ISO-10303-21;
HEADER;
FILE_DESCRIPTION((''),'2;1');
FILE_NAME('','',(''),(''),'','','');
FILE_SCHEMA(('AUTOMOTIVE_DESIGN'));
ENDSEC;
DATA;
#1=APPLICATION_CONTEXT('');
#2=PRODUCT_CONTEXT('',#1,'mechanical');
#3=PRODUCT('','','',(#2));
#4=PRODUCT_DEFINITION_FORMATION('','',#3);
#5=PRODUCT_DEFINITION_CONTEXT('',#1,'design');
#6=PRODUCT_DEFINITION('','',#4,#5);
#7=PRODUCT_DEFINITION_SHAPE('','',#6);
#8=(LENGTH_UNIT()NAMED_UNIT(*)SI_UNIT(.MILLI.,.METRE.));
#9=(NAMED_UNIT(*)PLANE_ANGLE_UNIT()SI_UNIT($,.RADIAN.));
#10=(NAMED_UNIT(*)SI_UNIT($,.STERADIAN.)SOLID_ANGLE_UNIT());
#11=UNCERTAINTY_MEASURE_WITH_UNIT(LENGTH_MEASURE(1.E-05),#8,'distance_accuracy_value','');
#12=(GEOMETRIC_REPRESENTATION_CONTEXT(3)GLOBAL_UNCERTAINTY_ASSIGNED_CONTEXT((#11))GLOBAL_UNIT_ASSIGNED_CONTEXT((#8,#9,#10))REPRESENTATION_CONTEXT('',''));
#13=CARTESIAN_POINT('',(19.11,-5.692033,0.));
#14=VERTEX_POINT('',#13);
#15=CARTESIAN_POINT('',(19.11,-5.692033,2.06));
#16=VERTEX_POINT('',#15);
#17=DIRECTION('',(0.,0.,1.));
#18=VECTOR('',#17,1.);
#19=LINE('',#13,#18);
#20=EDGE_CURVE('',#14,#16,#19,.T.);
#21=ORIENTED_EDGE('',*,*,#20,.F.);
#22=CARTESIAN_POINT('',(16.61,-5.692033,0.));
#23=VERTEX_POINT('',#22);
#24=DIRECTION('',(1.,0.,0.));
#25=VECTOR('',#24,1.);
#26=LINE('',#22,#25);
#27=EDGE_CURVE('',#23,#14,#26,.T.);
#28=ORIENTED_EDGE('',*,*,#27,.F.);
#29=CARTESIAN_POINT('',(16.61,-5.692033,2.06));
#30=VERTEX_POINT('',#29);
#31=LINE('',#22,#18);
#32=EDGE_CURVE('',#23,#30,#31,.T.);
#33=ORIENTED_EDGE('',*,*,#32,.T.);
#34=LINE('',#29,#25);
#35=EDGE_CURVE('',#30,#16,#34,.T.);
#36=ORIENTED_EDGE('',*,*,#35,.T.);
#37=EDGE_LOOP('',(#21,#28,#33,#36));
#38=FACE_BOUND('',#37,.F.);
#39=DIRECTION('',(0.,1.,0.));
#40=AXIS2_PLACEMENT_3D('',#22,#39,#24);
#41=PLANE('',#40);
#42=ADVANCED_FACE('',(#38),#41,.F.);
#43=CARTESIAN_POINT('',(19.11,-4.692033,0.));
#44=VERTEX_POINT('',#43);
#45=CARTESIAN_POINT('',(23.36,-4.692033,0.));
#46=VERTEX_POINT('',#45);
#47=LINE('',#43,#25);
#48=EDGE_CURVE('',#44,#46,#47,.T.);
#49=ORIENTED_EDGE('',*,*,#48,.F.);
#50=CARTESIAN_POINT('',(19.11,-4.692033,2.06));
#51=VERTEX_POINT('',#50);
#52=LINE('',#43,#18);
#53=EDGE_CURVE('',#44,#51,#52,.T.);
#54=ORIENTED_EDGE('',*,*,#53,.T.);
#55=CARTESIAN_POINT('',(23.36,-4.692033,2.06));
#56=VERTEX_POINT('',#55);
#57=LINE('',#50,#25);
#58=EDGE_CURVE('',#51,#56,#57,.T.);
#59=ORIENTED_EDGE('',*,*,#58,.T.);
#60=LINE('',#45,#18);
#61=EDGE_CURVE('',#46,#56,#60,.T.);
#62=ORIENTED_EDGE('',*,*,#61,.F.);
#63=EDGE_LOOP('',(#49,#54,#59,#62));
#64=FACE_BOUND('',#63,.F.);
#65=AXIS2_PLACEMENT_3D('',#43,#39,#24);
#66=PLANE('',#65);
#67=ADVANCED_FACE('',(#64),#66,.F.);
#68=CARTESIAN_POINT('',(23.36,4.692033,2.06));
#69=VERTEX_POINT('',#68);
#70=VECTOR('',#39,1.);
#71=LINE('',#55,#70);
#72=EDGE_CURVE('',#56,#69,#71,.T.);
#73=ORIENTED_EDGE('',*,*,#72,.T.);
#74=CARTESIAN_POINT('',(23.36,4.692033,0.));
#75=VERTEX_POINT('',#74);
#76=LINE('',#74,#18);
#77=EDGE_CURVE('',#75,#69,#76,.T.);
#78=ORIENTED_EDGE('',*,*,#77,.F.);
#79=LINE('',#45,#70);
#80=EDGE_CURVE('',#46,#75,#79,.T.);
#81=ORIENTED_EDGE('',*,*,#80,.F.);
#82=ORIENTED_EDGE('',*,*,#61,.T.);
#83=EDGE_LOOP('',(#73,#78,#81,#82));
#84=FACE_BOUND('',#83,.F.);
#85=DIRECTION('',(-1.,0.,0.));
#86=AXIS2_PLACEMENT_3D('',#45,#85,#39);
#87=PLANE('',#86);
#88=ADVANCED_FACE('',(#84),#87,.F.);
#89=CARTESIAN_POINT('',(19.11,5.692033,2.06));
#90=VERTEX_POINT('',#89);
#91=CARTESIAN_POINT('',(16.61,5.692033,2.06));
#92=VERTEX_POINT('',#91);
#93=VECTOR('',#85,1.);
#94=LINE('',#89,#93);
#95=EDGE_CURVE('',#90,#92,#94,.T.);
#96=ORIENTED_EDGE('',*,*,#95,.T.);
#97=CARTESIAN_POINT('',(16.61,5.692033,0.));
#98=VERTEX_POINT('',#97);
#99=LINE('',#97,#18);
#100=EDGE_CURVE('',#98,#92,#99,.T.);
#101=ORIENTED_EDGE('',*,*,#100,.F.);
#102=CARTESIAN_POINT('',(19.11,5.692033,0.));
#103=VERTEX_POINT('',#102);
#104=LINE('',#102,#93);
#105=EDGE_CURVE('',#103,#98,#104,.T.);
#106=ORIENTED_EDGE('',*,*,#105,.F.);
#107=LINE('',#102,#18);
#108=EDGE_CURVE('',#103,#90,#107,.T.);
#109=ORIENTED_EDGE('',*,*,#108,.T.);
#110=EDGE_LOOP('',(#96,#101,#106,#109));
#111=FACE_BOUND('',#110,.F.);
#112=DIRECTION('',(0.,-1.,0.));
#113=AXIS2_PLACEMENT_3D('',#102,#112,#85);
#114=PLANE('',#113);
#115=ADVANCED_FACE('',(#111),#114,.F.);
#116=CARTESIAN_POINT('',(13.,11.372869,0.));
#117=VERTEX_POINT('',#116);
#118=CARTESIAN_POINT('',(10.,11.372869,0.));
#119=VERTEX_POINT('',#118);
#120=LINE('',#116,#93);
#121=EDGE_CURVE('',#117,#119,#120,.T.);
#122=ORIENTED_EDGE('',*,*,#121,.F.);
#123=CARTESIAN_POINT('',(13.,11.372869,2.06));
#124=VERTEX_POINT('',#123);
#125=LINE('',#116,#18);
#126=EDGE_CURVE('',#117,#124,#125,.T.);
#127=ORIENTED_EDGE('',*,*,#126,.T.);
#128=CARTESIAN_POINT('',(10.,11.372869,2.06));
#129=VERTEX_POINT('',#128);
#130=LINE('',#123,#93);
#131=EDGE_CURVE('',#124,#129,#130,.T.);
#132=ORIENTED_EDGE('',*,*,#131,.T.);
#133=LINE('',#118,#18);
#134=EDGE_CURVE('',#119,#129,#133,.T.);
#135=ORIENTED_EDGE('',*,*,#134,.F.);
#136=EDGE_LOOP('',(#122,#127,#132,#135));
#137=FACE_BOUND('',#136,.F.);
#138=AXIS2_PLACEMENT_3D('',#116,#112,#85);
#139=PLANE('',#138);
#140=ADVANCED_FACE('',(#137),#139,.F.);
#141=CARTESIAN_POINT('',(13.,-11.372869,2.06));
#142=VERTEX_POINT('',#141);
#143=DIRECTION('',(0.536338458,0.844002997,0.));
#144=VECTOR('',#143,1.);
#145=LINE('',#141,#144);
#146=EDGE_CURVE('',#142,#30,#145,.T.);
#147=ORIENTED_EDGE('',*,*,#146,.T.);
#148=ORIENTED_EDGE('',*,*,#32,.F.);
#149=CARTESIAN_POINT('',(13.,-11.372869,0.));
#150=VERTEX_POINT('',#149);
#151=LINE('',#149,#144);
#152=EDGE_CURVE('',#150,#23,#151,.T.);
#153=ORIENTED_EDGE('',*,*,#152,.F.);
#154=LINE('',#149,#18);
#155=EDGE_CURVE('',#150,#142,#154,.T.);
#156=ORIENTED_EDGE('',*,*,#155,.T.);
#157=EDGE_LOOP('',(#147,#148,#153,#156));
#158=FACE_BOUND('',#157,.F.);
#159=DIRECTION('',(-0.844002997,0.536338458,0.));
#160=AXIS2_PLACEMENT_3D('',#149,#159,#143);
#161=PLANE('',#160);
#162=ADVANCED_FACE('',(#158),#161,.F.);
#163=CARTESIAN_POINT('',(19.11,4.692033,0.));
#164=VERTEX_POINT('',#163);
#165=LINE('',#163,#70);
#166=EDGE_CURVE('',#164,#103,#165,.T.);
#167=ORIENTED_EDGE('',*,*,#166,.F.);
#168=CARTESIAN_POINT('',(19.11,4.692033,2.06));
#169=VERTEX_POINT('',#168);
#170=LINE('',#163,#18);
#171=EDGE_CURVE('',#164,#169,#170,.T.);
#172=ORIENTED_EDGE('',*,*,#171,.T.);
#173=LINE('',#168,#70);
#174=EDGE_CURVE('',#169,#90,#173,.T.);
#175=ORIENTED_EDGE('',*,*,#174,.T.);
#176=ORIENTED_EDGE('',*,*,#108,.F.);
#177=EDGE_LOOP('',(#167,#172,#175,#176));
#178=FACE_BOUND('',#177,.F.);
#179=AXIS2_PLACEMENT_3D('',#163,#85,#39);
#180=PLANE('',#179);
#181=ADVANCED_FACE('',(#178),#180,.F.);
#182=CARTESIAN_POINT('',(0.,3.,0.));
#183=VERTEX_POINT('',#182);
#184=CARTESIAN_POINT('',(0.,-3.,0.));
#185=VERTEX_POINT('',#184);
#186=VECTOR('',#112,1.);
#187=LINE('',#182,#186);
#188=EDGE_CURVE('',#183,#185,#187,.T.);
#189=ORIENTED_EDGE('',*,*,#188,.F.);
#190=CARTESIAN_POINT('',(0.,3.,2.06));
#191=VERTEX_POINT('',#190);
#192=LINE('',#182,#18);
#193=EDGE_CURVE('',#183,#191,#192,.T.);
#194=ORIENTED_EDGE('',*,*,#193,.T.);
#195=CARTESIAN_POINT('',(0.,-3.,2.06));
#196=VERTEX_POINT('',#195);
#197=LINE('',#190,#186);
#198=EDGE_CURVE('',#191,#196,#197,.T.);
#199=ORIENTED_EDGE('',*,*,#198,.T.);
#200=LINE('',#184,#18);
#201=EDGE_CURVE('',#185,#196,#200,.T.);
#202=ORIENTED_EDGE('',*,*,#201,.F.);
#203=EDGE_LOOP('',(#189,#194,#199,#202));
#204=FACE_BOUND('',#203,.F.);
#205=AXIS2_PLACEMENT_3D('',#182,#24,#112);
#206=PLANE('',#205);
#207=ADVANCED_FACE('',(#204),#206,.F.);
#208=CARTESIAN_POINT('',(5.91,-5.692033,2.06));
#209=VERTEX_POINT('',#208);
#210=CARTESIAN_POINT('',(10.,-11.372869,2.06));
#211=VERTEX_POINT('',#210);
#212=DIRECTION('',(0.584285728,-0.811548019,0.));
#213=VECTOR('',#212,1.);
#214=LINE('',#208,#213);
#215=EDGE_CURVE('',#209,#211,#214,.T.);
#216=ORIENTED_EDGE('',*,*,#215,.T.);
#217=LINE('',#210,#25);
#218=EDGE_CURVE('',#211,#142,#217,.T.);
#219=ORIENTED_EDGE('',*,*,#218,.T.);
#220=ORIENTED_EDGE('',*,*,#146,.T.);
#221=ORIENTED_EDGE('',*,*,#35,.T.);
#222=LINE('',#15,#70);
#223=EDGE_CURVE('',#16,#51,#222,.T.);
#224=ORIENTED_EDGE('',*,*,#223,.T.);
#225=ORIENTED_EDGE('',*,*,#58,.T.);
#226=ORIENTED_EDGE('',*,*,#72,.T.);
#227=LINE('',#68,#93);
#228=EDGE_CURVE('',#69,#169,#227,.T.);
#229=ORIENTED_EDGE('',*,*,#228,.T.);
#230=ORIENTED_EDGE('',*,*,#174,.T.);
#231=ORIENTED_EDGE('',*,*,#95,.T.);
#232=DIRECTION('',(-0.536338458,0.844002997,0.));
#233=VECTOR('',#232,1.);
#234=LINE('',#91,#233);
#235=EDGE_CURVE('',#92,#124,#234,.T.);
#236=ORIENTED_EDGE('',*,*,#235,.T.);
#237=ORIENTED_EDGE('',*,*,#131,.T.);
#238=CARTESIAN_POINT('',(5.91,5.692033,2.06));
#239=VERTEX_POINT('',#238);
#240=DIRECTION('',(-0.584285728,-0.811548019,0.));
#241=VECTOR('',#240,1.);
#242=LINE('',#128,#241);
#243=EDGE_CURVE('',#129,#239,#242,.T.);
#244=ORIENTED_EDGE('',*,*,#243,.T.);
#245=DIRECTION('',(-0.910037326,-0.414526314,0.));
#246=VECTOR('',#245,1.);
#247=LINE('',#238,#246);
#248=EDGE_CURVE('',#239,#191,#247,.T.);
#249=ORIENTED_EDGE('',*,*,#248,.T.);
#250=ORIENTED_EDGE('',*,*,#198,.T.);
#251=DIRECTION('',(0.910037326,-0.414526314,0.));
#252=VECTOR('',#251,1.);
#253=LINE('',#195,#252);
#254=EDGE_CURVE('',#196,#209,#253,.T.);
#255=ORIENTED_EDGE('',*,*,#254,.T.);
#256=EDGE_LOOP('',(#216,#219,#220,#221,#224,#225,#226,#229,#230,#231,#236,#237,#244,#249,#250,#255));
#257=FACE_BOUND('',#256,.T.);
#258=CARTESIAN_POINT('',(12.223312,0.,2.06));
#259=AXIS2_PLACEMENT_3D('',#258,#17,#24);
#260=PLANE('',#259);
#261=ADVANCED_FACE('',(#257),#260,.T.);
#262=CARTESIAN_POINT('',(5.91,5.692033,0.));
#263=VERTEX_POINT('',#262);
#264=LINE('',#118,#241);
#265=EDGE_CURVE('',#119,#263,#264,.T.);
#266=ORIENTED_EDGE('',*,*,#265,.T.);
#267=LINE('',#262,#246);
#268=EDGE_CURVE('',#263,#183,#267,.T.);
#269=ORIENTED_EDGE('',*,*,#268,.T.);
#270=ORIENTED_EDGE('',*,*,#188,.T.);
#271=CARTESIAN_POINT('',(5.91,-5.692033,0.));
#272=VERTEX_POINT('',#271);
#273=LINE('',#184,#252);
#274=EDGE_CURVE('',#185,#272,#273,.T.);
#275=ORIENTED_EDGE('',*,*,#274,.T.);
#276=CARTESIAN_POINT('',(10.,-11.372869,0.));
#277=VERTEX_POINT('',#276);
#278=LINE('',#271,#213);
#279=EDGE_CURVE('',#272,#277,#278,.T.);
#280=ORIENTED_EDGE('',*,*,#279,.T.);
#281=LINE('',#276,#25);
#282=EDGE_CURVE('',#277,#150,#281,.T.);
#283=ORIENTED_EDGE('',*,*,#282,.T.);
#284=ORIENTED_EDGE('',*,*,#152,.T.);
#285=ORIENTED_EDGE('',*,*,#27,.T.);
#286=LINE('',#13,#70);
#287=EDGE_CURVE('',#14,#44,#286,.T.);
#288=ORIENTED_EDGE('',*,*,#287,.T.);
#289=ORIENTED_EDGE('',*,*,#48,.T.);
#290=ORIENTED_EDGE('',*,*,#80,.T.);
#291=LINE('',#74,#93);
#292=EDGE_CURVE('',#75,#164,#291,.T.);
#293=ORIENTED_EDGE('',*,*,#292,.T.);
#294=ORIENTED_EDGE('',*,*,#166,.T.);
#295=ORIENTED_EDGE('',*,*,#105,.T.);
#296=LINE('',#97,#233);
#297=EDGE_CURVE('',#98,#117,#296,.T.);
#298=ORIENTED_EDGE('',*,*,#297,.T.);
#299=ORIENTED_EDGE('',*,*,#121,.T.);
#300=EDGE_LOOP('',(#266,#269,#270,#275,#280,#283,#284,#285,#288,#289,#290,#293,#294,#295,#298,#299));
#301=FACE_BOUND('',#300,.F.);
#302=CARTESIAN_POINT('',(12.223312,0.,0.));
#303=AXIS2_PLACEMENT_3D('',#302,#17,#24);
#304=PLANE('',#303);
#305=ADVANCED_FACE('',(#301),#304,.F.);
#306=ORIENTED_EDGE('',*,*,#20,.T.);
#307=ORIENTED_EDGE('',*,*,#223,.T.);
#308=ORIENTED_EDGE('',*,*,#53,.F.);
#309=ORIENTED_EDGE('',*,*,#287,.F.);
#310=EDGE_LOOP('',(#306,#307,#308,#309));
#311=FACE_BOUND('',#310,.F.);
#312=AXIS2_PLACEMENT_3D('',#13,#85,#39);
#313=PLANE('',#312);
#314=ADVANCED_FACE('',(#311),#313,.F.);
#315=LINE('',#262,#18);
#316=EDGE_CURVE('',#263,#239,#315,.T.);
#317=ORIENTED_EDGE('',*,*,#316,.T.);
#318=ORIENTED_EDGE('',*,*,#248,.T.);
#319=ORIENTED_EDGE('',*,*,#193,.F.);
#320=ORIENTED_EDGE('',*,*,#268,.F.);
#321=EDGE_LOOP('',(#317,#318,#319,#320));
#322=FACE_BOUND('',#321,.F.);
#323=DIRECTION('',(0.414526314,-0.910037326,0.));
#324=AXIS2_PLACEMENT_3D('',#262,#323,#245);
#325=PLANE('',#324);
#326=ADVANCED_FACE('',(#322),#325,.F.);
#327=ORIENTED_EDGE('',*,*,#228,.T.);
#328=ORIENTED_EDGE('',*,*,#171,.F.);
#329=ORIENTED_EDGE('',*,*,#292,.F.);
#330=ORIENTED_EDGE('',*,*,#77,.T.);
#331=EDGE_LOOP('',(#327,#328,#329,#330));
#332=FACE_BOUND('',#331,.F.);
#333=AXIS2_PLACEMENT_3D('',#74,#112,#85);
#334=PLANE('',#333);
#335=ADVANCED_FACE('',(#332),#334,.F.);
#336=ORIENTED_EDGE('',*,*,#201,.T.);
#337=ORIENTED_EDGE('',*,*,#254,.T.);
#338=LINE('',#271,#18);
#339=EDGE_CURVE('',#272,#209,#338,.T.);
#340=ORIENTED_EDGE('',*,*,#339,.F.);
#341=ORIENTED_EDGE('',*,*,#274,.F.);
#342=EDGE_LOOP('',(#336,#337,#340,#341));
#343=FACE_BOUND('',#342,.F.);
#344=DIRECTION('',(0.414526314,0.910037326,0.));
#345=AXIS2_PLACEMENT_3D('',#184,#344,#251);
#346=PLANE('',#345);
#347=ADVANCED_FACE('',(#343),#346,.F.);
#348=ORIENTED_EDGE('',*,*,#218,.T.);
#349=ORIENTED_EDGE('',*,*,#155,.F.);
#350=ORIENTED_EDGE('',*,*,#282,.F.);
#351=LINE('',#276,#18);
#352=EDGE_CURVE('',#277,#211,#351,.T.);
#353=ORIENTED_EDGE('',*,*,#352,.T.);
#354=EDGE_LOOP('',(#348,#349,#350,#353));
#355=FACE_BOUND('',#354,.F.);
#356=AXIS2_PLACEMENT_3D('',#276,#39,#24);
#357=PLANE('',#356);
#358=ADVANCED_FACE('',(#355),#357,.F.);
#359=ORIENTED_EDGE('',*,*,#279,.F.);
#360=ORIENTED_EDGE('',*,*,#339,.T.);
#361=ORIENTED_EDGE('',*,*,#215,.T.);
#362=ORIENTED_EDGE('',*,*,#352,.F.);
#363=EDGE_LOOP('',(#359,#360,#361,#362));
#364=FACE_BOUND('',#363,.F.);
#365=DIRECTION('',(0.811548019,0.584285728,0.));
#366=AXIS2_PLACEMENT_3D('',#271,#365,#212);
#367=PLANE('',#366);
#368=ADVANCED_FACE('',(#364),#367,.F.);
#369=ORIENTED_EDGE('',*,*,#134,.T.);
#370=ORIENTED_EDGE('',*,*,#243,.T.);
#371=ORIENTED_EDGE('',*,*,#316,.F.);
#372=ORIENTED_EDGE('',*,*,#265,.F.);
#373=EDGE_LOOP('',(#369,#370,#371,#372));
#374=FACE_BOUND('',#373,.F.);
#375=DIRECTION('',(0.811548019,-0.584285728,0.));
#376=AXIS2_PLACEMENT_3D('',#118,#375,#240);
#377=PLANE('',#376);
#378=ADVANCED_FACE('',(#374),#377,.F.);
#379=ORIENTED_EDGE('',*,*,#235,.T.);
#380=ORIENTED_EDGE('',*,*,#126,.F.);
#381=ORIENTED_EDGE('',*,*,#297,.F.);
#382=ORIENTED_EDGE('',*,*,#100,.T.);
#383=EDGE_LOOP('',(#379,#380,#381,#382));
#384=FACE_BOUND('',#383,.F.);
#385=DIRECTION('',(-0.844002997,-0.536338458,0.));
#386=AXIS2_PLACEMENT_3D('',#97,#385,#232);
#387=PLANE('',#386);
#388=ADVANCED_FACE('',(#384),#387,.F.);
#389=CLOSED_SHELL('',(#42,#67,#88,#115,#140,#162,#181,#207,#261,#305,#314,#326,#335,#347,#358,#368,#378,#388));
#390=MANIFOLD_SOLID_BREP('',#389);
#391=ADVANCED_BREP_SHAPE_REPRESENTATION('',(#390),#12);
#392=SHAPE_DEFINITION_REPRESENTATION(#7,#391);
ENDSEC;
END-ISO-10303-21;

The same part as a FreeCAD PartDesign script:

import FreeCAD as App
import Part
import Sketcher

doc = App.newDocument("Part")
body = doc.addObject("PartDesign::Body", "Body")

# Sketch on XY plane
sketch1 = doc.addObject("Sketcher::SketchObject", "Sketch")
body.addObject(sketch1)
sketch1.AttachmentSupport = (doc.XY_Plane, [""])
sketch1.MapMode = "FlatFace"
sketch1.addGeometry([
    Part.LineSegment(App.Vector(0, 3, 0), App.Vector(0, -3, 0)),  # 0
    Part.LineSegment(App.Vector(0, -3, 0), App.Vector(5.91, -5.692033, 0)),  # 1
    Part.LineSegment(App.Vector(5.91, -5.692033, 0), App.Vector(10, -11.372869, 0)),  # 2
    Part.LineSegment(App.Vector(10, -11.372869, 0), App.Vector(13, -11.372869, 0)),  # 3
    Part.LineSegment(App.Vector(13, -11.372869, 0), App.Vector(16.61, -5.692033, 0)),  # 4
    Part.LineSegment(App.Vector(16.61, -5.692033, 0), App.Vector(19.11, -5.692033, 0)),  # 5
    Part.LineSegment(App.Vector(19.11, -5.692033, 0), App.Vector(19.11, -4.692033, 0)),  # 6
    Part.LineSegment(App.Vector(19.11, -4.692033, 0), App.Vector(23.36, -4.692033, 0)),  # 7
    Part.LineSegment(App.Vector(23.36, -4.692033, 0), App.Vector(23.36, 4.692033, 0)),  # 8
    Part.LineSegment(App.Vector(23.36, 4.692033, 0), App.Vector(19.11, 4.692033, 0)),  # 9
    Part.LineSegment(App.Vector(19.11, 4.692033, 0), App.Vector(19.11, 5.692033, 0)),  # 10
    Part.LineSegment(App.Vector(19.11, 5.692033, 0), App.Vector(16.61, 5.692033, 0)),  # 11
    Part.LineSegment(App.Vector(16.61, 5.692033, 0), App.Vector(13, 11.372869, 0)),  # 12
    Part.LineSegment(App.Vector(13, 11.372869, 0), App.Vector(10, 11.372869, 0)),  # 13
    Part.LineSegment(App.Vector(10, 11.372869, 0), App.Vector(5.91, 5.692033, 0)),  # 14
    Part.LineSegment(App.Vector(5.91, 5.692033, 0), App.Vector(0, 3, 0)),  # 15
], False)
sketch1.addConstraint([
    Sketcher.Constraint("Coincident", 0, 2, 1, 1),
    Sketcher.Constraint("Coincident", 1, 2, 2, 1),
    Sketcher.Constraint("Coincident", 2, 2, 3, 1),
    Sketcher.Constraint("Coincident", 3, 2, 4, 1),
    Sketcher.Constraint("Coincident", 4, 2, 5, 1),
    Sketcher.Constraint("Coincident", 5, 2, 6, 1),
    Sketcher.Constraint("Coincident", 6, 2, 7, 1),
    Sketcher.Constraint("Coincident", 7, 2, 8, 1),
    Sketcher.Constraint("Coincident", 8, 2, 9, 1),
    Sketcher.Constraint("Coincident", 9, 2, 10, 1),
    Sketcher.Constraint("Coincident", 10, 2, 11, 1),
    Sketcher.Constraint("Coincident", 11, 2, 12, 1),
    Sketcher.Constraint("Coincident", 12, 2, 13, 1),
    Sketcher.Constraint("Coincident", 13, 2, 14, 1),
    Sketcher.Constraint("Coincident", 14, 2, 15, 1),
    Sketcher.Constraint("Coincident", 15, 2, 0, 1),
    Sketcher.Constraint("Vertical", 0),
    Sketcher.Constraint("Horizontal", 3),
    Sketcher.Constraint("Horizontal", 5),
    Sketcher.Constraint("Vertical", 6),
    Sketcher.Constraint("Horizontal", 7),
    Sketcher.Constraint("Vertical", 8),
    Sketcher.Constraint("Horizontal", 9),
    Sketcher.Constraint("Vertical", 10),
    Sketcher.Constraint("Horizontal", 11),
    Sketcher.Constraint("Horizontal", 13),
    Sketcher.Constraint("Symmetric", 0, 2, 15, 2, -1, 1),
    Sketcher.Constraint("Symmetric", 6, 2, 9, 2, -1),
    Sketcher.Constraint("Symmetric", 4, 2, 11, 2, -1),
    Sketcher.Constraint("Symmetric", 3, 2, 12, 2, -1),
    Sketcher.Constraint("Symmetric", 1, 2, 14, 2, -1),
    Sketcher.Constraint("Horizontal", 1, 2, 4, 2),
    Sketcher.Constraint("Vertical", 2, 2, 13, 2),
    Sketcher.Constraint("DistanceX", 3, 1, 3, 2, 3.0),
    Sketcher.Constraint("DistanceY", 0, 2, 0, 1, 6.0),
    Sketcher.Constraint("DistanceY", 6, 1, 6, 2, 1.0),
    Sketcher.Constraint("Distance", 2, 7.0),
    Sketcher.Constraint("DistanceX", 5, 1, 5, 2, 2.5),
    Sketcher.Constraint("DistanceX", -1, 1, 2, 2, 10.0),
    Sketcher.Constraint("DistanceX", 7, 1, 7, 2, 4.25),
    Sketcher.Constraint("DistanceX", 1, 2, 4, 2, 10.7),
    Sketcher.Constraint("DistanceX", -1, 1, 1, 2, 5.91),
    Sketcher.Constraint("DistanceY", 3, 2, 8, 2, 16.064902),
])
pad1 = doc.addObject("PartDesign::Pad", "Pad")
body.addObject(pad1)
pad1.Profile = sketch1
pad1.Length = 2.06

doc.recompute()
